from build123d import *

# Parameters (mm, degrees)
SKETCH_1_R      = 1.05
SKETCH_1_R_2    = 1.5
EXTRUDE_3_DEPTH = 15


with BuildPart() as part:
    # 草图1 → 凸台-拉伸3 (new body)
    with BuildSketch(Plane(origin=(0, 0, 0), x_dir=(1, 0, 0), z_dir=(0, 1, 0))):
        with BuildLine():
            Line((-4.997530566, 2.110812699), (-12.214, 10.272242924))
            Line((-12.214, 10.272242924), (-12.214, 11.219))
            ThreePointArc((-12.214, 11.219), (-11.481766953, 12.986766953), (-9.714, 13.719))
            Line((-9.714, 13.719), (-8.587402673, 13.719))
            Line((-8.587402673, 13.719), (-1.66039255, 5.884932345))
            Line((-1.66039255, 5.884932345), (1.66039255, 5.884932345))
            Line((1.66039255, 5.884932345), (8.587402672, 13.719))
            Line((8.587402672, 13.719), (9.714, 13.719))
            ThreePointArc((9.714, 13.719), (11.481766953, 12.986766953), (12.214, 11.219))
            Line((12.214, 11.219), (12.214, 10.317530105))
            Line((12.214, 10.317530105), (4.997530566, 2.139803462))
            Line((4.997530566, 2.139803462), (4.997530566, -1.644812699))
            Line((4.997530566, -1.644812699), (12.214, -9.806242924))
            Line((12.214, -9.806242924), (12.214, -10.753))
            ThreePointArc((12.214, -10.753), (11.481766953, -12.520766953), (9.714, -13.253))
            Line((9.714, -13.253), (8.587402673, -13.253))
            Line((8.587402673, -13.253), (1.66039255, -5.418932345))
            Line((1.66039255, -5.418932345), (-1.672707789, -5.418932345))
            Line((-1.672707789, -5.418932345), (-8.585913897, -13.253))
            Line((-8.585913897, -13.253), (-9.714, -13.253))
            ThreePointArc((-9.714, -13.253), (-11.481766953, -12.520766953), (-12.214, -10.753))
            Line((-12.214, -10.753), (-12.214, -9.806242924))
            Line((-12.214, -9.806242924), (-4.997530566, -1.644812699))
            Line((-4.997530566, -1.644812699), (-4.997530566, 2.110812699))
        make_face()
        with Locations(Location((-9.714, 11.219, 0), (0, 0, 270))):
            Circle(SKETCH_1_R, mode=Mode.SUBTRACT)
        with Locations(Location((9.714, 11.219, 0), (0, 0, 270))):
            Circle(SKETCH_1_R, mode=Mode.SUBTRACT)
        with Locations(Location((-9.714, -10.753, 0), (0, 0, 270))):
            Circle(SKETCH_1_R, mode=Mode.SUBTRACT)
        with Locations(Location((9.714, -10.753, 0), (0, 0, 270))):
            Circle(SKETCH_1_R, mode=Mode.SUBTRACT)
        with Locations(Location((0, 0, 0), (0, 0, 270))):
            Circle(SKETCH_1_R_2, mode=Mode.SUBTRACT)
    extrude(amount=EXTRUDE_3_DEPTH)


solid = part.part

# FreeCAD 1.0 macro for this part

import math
import FreeCAD as App
import Part
import Sketcher
from FreeCAD import Vector
Q = App.Units.Quantity

doc = App.newDocument("Part")
body = doc.addObject("PartDesign::Body", "Body")

# Sketch on XZ plane
sketch1 = doc.addObject("Sketcher::SketchObject", "Sketch")
body.addObject(sketch1)
sketch1.AttachmentSupport = (doc.XZ_Plane, [""])
sketch1.MapMode = "FlatFace"
sketch1.addGeometry([
    Part.LineSegment(Vector(-12.2, -10.3, 0), Vector(-5, -2.1, 0)),  # 0
    Part.LineSegment(Vector(-5, -2.1, 0), Vector(-5, 1.6, 0)),  # 1
    Part.LineSegment(Vector(-5, 1.6, 0), Vector(-12.2, 9.8, 0)),  # 2
    Part.LineSegment(Vector(-12.2, 9.8, 0), Vector(-12.2, 10.8, 0)),  # 3
    Part.ArcOfCircle(Part.Circle(Vector(-9.7, 10.8, 0), Vector(0, 0, 1), 2.5), math.radians(90), math.radians(180)),  # 4
    Part.LineSegment(Vector(-9.7, 13.3, 0), Vector(-8.6, 13.3, 0)),  # 5
    Part.LineSegment(Vector(-8.6, 13.3, 0), Vector(-1.7, 5.4, 0)),  # 6
    Part.LineSegment(Vector(-1.7, 5.4, 0), Vector(1.7, 5.4, 0)),  # 7
    Part.LineSegment(Vector(1.7, 5.4, 0), Vector(8.6, 13.3, 0)),  # 8
    Part.LineSegment(Vector(8.6, 13.3, 0), Vector(9.7, 13.3, 0)),  # 9
    Part.ArcOfCircle(Part.Circle(Vector(9.7, 10.8, 0), Vector(0, 0, 1), 2.5), math.radians(0), math.radians(90)),  # 10
    Part.LineSegment(Vector(12.2, 10.8, 0), Vector(12.2, 9.8, 0)),  # 11
    Part.LineSegment(Vector(12.2, 9.8, 0), Vector(5, 1.6, 0)),  # 12
    Part.LineSegment(Vector(5, 1.6, 0), Vector(5, -2.1, 0)),  # 13
    Part.LineSegment(Vector(5, -2.1, 0), Vector(12.2, -10.3, 0)),  # 14
    Part.LineSegment(Vector(12.2, -10.3, 0), Vector(12.2, -11.2, 0)),  # 15
    Part.ArcOfCircle(Part.Circle(Vector(9.7, -11.2, 0), Vector(0, 0, 1), 2.5), math.radians(-90), math.radians(0)),  # 16
    Part.LineSegment(Vector(9.7, -13.7, 0), Vector(8.6, -13.7, 0)),  # 17
    Part.LineSegment(Vector(8.6, -13.7, 0), Vector(1.7, -5.9, 0)),  # 18
    Part.LineSegment(Vector(1.7, -5.9, 0), Vector(-1.7, -5.9, 0)),  # 19
    Part.LineSegment(Vector(-1.7, -5.9, 0), Vector(-8.6, -13.7, 0)),  # 20
    Part.LineSegment(Vector(-8.6, -13.7, 0), Vector(-9.7, -13.7, 0)),  # 21
    Part.ArcOfCircle(Part.Circle(Vector(-9.7, -11.2, 0), Vector(0, 0, 1), 2.5), math.radians(180), math.radians(270)),  # 22
    Part.LineSegment(Vector(-12.2, -11.2, 0), Vector(-12.2, -10.3, 0)),  # 23
    Part.Circle(Vector(9.7, 10.8, 0), Vector(0, 0, 1), 1.1),  # 24
    Part.Circle(Vector(-9.7, 10.8, 0), Vector(0, 0, 1), 1.1),  # 25
    Part.Circle(Vector(0, 0, 0), Vector(0, 0, 1), 1.5),  # 26
    Part.Circle(Vector(9.7, -11.2, 0), Vector(0, 0, 1), 1.1),  # 27
    Part.Circle(Vector(-9.7, -11.2, 0), Vector(0, 0, 1), 1.1),  # 28
], False)
sketch1.addConstraint([
    Sketcher.Constraint("Coincident", 0, 2, 1, 1),
    Sketcher.Constraint("Coincident", 1, 2, 2, 1),
    Sketcher.Constraint("Coincident", 2, 2, 3, 1),
    Sketcher.Constraint("Tangent", 3, 2, 4, 2),
    Sketcher.Constraint("Tangent", 4, 1, 5, 1),
    Sketcher.Constraint("Coincident", 5, 2, 6, 1),
    Sketcher.Constraint("Coincident", 6, 2, 7, 1),
    Sketcher.Constraint("Coincident", 7, 2, 8, 1),
    Sketcher.Constraint("Coincident", 8, 2, 9, 1),
    Sketcher.Constraint("Tangent", 9, 2, 10, 2),
    Sketcher.Constraint("Tangent", 10, 1, 11, 1),
    Sketcher.Constraint("Coincident", 11, 2, 12, 1),
    Sketcher.Constraint("Coincident", 12, 2, 13, 1),
    Sketcher.Constraint("Coincident", 13, 2, 14, 1),
    Sketcher.Constraint("Coincident", 14, 2, 15, 1),
    Sketcher.Constraint("Tangent", 15, 2, 16, 2),
    Sketcher.Constraint("Tangent", 16, 1, 17, 1),
    Sketcher.Constraint("Coincident", 17, 2, 18, 1),
    Sketcher.Constraint("Coincident", 18, 2, 19, 1),
    Sketcher.Constraint("Coincident", 19, 2, 20, 1),
    Sketcher.Constraint("Coincident", 20, 2, 21, 1),
    Sketcher.Constraint("Tangent", 21, 2, 22, 2),
    Sketcher.Constraint("Tangent", 22, 1, 23, 1),
    Sketcher.Constraint("Coincident", 23, 2, 0, 1),
    Sketcher.Constraint("Vertical", 1),
    Sketcher.Constraint("Vertical", 3),
    Sketcher.Constraint("Horizontal", 5),
    Sketcher.Constraint("Horizontal", 7),
    Sketcher.Constraint("Horizontal", 9),
    Sketcher.Constraint("Vertical", 11),
    Sketcher.Constraint("Vertical", 13),
    Sketcher.Constraint("Vertical", 15),
    Sketcher.Constraint("Horizontal", 17),
    Sketcher.Constraint("Horizontal", 19),
    Sketcher.Constraint("Horizontal", 21),
    Sketcher.Constraint("Vertical", 23),
    Sketcher.Constraint("Coincident", 26, 3, -1, 1),
    Sketcher.Constraint("Coincident", 24, 3, 10, 3),
    Sketcher.Constraint("Coincident", 25, 3, 4, 3),
    Sketcher.Constraint("Coincident", 27, 3, 16, 3),
    Sketcher.Constraint("Coincident", 28, 3, 22, 3),
    Sketcher.Constraint("Equal", 4, 10),
    Sketcher.Constraint("Equal", 10, 16),
    Sketcher.Constraint("Equal", 16, 22),
    Sketcher.Constraint("Equal", 24, 25),
    Sketcher.Constraint("Equal", 25, 27),
    Sketcher.Constraint("Equal", 27, 28),
    Sketcher.Constraint("Symmetric", 4, 3, 10, 3, -2),
    Sketcher.Constraint("Symmetric", 16, 3, 22, 3, -2),
    Sketcher.Constraint("Symmetric", 1, 2, 12, 2, -2),
    Sketcher.Constraint("Parallel", 0, 8),
    Sketcher.Constraint("Parallel", 8, 12),
    Sketcher.Constraint("Parallel", 6, 14),
    Sketcher.Constraint("Parallel", 2, 18),
    Sketcher.Constraint("Parallel", 12, 20),
    Sketcher.Constraint("Horizontal", 2, 2, 11, 2),
    Sketcher.Constraint("Vertical", 10, 3, 16, 3),
    Sketcher.Constraint("Vertical", 8, 2, 17, 2),
    Sketcher.Constraint("Vertical", 7, 2, 18, 2),
    Sketcher.Constraint("Equal", 17, 21),
    Sketcher.Constraint("Equal", 11, 23),
    Sketcher.Constraint("Diameter", 26, Q("3 mm")),
    Sketcher.Constraint("Diameter", 24, Q("2.1 mm")),
    Sketcher.Constraint("Radius", 4, Q("2.5 mm")),
    Sketcher.Constraint("DistanceX", 7, 1, 7, 2, Q("3.3331 mm")),
    Sketcher.Constraint("DistanceX", 4, 3, -1, 1, Q("9.714 mm")),
    Sketcher.Constraint("DistanceY", -1, 1, 4, 3, Q("10.753 mm")),
    Sketcher.Constraint("DistanceY", 16, 3, -1, 1, Q("11.219 mm")),
    Sketcher.Constraint("DistanceY", 15, 2, 15, 1, Q("0.90147 mm")),
    Sketcher.Constraint("Distance", 14, Q("10.906541 mm")),
    Sketcher.Constraint("DistanceX", 5, 1, 5, 2, Q("1.128086 mm")),
    Sketcher.Constraint("DistanceX", 9, 1, 9, 2, Q("1.126597 mm")),
    Sketcher.Constraint("DistanceX", 19, 2, 19, 1, Q("3.320785 mm")),
    Sketcher.Constraint("DistanceY", 1, 1, 1, 2, Q("3.755625 mm")),
    Sketcher.Constraint("DistanceY", 3, 1, 3, 2, Q("0.946757 mm")),
])
pad1 = doc.addObject("PartDesign::Pad", "Pad")
body.addObject(pad1)
pad1.Profile = sketch1
pad1.Length = 15
pad1.Reversed = True

doc.recompute()
